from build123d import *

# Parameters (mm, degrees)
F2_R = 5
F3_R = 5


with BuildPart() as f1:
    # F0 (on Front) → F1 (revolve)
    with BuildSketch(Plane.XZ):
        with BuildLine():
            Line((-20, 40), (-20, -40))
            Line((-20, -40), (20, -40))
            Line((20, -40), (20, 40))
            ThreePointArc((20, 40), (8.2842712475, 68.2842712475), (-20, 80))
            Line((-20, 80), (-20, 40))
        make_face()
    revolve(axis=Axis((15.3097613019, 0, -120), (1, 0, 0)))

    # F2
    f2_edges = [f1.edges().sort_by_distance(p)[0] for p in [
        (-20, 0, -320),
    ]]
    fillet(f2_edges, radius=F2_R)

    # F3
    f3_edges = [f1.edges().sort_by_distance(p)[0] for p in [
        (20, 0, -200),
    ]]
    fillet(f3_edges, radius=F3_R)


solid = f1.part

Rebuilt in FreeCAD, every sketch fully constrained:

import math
import FreeCAD as App
import Part
import Sketcher

V = App.Vector


def edges_at(feature, points):
    """Names of the edges that pass closest to the given points."""
    edges = feature.Shape.Edges
    near = lambda p: min(range(len(edges)), key=lambda i: edges[i].distToShape(Part.Vertex(*p))[0])
    return sorted({f"Edge{near(p) + 1}" for p in points})

doc = App.newDocument("Part")
body = doc.addObject("PartDesign::Body", "Body")

# Sketch on XZ plane
sketch1 = body.newObject("Sketcher::SketchObject", "Sketch")
sketch1.AttachmentSupport = (doc.getObject("XZ_Plane"), [""])
sketch1.MapMode = "FlatFace"
sketch1.addGeometry(Part.LineSegment(V(-20, -40, 0), V(20, -40, 0)), False)
sketch1.addGeometry(Part.LineSegment(V(20, -40, 0), V(20, 40, 0)), False)
sketch1.addGeometry(Part.ArcOfCircle(Part.Circle(V(-20, 40, 0), V(0, 0, 1), 40), math.radians(0), math.radians(90)), False)
sketch1.addGeometry(Part.LineSegment(V(-20, 80, 0), V(-20, -40, 0)), False)
sketch1.addGeometry(Part.LineSegment(V(-20, -120, 0), V(20, -120, 0)), True)  # axis
sketch1.addConstraint(Sketcher.Constraint("Coincident", 0, 2, 1, 1))
sketch1.addConstraint(Sketcher.Constraint("Tangent", 1, 2, 2, 1))
sketch1.addConstraint(Sketcher.Constraint("Coincident", 2, 2, 3, 1))
sketch1.addConstraint(Sketcher.Constraint("Coincident", 3, 2, 0, 1))
sketch1.addConstraint(Sketcher.Constraint("Horizontal", 0))
sketch1.addConstraint(Sketcher.Constraint("Vertical", 1))
sketch1.addConstraint(Sketcher.Constraint("Vertical", 3))
sketch1.addConstraint(Sketcher.Constraint("Horizontal", 4))
sketch1.addConstraint(Sketcher.Constraint("Symmetric", 1, 2, 3, 2, -1, 1))
sketch1.addConstraint(Sketcher.Constraint("Vertical", 3, 2, 4, 1))
sketch1.addConstraint(Sketcher.Constraint("Vertical", 1, 2, 4, 2))
sketch1.addConstraint(Sketcher.Constraint("Radius", 2, 40.0))
sketch1.addConstraint(Sketcher.Constraint("DistanceX", 0, 1, 0, 2, 40.0))
sketch1.addConstraint(Sketcher.Constraint("DistanceY", 1, 1, 1, 2, 80.0))
sketch1.addConstraint(Sketcher.Constraint("DistanceY", 4, 1, -1, 1, 120.0))
revolution = body.newObject("PartDesign::Revolution", "Revolution")
revolution.Profile = sketch1
revolution.ReferenceAxis = (sketch1, ["Axis0"])
revolution.Angle = 360
doc.recompute()

fillet = body.newObject("PartDesign::Fillet", "Fillet")
fillet.Base = (revolution, edges_at(revolution, [(-20, 0, -320)]))
fillet.Radius = 5
doc.recompute()

fillet2 = body.newObject("PartDesign::Fillet", "Fillet001")
fillet2.Base = (fillet, edges_at(fillet, [(20, 0, -200)]))
fillet2.Radius = 5

doc.recompute()
